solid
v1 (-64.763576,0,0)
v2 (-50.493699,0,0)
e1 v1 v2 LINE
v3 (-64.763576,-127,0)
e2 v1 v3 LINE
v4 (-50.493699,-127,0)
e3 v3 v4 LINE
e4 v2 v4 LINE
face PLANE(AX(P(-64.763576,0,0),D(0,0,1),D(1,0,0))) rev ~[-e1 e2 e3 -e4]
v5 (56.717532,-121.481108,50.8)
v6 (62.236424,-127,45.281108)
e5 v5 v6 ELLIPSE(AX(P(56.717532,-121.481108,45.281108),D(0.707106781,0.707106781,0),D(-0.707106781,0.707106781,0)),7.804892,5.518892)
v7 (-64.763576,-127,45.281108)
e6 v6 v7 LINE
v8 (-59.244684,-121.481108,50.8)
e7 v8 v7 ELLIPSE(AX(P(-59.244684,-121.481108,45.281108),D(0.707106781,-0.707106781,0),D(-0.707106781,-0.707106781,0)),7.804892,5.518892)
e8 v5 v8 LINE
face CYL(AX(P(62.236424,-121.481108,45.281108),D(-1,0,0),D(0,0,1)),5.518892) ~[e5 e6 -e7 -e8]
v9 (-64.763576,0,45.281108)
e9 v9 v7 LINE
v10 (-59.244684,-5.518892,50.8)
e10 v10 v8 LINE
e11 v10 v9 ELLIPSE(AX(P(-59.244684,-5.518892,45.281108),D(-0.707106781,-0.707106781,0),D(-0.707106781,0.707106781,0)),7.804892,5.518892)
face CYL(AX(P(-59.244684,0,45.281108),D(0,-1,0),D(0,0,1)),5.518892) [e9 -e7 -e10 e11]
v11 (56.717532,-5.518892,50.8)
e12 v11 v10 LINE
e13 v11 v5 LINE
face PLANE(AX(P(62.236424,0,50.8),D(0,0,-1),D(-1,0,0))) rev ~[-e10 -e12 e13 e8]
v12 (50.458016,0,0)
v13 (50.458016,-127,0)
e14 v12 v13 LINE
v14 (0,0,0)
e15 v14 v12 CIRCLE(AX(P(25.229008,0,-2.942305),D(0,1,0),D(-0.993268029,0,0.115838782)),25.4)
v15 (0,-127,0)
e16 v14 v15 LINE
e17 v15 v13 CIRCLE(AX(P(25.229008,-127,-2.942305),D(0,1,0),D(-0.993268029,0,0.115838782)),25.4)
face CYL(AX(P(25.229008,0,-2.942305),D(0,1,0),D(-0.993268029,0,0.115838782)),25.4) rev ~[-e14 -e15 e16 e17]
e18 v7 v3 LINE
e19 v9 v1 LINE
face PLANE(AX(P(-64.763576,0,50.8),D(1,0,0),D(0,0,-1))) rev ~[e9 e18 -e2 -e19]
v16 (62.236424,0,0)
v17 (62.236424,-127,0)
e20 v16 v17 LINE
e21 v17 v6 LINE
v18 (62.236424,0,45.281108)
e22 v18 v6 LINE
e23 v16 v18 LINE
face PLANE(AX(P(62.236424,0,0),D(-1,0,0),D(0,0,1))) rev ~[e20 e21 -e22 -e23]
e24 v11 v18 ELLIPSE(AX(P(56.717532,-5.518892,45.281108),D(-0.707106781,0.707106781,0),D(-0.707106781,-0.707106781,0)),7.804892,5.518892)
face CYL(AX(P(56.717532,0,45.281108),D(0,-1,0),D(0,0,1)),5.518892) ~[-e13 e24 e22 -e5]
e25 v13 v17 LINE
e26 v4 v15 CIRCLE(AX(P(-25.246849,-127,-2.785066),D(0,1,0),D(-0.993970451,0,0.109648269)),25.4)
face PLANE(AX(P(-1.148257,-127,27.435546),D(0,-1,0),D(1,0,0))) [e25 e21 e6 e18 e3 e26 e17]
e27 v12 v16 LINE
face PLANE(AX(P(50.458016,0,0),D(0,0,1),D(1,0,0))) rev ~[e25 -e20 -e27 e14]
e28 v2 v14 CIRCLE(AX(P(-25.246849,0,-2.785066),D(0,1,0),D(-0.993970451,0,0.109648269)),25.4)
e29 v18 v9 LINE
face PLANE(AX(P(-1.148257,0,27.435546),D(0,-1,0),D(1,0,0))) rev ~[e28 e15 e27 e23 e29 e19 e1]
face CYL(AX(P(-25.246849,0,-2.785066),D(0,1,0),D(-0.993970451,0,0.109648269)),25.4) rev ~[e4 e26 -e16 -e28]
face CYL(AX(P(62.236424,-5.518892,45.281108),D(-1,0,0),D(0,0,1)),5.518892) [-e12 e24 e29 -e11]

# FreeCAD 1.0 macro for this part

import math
import FreeCAD as App
import Part
import Sketcher

V = App.Vector
Q = App.Units.Quantity


def edges_at(feature, points):
    """Names of the edges that pass closest to the given points."""
    edges = feature.Shape.Edges
    near = lambda p: min(range(len(edges)), key=lambda i: edges[i].distToShape(Part.Vertex(*p))[0])
    return sorted({f"Edge{near(p) + 1}" for p in points})

doc = App.newDocument("Part")
body = doc.addObject("PartDesign::Body", "Body")

sketch1 = doc.addObject("Sketcher::SketchObject", "Sketch")
body.addObject(sketch1)
sketch1.AttachmentSupport = (doc.XZ_Plane, [""])
sketch1.MapMode = "FlatFace"
sketch1.addGeometry(Part.LineSegment(V(62, 51, 0), V(-65, 51, 0)), False)
sketch1.addGeometry(Part.LineSegment(V(-65, 51, 0), V(-65, 0, 0)), False)
sketch1.addGeometry(Part.LineSegment(V(-65, 0, 0), V(-50, 0, 0)), False)
sketch1.addGeometry(Part.ArcOfCircle(Part.Circle(V(-25, -3, 0), V(0, 0, 1), 25), math.radians(6), math.radians(174)), False)
sketch1.addGeometry(Part.ArcOfCircle(Part.Circle(V(25, -3, 0), V(0, 0, 1), 25), math.radians(7), math.radians(173)), False)
sketch1.addGeometry(Part.LineSegment(V(50, 0, 0), V(62, 0, 0)), False)
sketch1.addGeometry(Part.LineSegment(V(62, 0, 0), V(62, 51, 0)), False)
sketch1.addConstraint(Sketcher.Constraint("Coincident", 0, 2, 1, 1))
sketch1.addConstraint(Sketcher.Constraint("Coincident", 1, 2, 2, 1))
sketch1.addConstraint(Sketcher.Constraint("Coincident", 2, 2, 3, 2))
sketch1.addConstraint(Sketcher.Constraint("Coincident", 3, 1, 4, 2))
sketch1.addConstraint(Sketcher.Constraint("Coincident", 4, 1, 5, 1))
sketch1.addConstraint(Sketcher.Constraint("Coincident", 5, 2, 6, 1))
sketch1.addConstraint(Sketcher.Constraint("Coincident", 6, 2, 0, 1))
sketch1.addConstraint(Sketcher.Constraint("Horizontal", 0))
sketch1.addConstraint(Sketcher.Constraint("Vertical", 1))
sketch1.addConstraint(Sketcher.Constraint("Horizontal", 2))
sketch1.addConstraint(Sketcher.Constraint("Horizontal", 5))
sketch1.addConstraint(Sketcher.Constraint("Vertical", 6))
sketch1.addConstraint(Sketcher.Constraint("Coincident", 3, 1, -1, 1))
sketch1.addConstraint(Sketcher.Constraint("Equal", 3, 4))
sketch1.addConstraint(Sketcher.Constraint("PointOnObject", 1, 2, -1))
sketch1.addConstraint(Sketcher.Constraint("PointOnObject", 4, 1, -1))
sketch1.addConstraint(Sketcher.Constraint("Radius", 3, Q("1 in")))
sketch1.addConstraint(Sketcher.Constraint("DistanceX", 0, 2, 0, 1, Q("5 in")))
sketch1.addConstraint(Sketcher.Constraint("DistanceY", 1, 2, 1, 1, Q("2 in")))
sketch1.addConstraint(Sketcher.Constraint("DistanceX", 2, 2, -1, 1, 50.493699))
sketch1.addConstraint(Sketcher.Constraint("DistanceX", 2, 1, 2, 2, 14.269877))
sketch1.addConstraint(Sketcher.Constraint("DistanceX", 5, 1, 5, 2, 11.778408))
pad1 = doc.addObject("PartDesign::Pad", "Pad")
body.addObject(pad1)
pad1.Profile = sketch1
pad1.Length = Q("5 in")
doc.recompute()

fillet = doc.addObject("PartDesign::Fillet", "Fillet")
body.addObject(fillet)
fillet.Base = (pad1, edges_at(pad1, [
    (-1.264, 0, 50.8),
    (-64.764, -63.5, 50.8),
    (-1.264, -127, 50.8),
    (62.236, -63.5, 50.8),
]))
fillet.Radius = 5.518892

doc.recompute()
